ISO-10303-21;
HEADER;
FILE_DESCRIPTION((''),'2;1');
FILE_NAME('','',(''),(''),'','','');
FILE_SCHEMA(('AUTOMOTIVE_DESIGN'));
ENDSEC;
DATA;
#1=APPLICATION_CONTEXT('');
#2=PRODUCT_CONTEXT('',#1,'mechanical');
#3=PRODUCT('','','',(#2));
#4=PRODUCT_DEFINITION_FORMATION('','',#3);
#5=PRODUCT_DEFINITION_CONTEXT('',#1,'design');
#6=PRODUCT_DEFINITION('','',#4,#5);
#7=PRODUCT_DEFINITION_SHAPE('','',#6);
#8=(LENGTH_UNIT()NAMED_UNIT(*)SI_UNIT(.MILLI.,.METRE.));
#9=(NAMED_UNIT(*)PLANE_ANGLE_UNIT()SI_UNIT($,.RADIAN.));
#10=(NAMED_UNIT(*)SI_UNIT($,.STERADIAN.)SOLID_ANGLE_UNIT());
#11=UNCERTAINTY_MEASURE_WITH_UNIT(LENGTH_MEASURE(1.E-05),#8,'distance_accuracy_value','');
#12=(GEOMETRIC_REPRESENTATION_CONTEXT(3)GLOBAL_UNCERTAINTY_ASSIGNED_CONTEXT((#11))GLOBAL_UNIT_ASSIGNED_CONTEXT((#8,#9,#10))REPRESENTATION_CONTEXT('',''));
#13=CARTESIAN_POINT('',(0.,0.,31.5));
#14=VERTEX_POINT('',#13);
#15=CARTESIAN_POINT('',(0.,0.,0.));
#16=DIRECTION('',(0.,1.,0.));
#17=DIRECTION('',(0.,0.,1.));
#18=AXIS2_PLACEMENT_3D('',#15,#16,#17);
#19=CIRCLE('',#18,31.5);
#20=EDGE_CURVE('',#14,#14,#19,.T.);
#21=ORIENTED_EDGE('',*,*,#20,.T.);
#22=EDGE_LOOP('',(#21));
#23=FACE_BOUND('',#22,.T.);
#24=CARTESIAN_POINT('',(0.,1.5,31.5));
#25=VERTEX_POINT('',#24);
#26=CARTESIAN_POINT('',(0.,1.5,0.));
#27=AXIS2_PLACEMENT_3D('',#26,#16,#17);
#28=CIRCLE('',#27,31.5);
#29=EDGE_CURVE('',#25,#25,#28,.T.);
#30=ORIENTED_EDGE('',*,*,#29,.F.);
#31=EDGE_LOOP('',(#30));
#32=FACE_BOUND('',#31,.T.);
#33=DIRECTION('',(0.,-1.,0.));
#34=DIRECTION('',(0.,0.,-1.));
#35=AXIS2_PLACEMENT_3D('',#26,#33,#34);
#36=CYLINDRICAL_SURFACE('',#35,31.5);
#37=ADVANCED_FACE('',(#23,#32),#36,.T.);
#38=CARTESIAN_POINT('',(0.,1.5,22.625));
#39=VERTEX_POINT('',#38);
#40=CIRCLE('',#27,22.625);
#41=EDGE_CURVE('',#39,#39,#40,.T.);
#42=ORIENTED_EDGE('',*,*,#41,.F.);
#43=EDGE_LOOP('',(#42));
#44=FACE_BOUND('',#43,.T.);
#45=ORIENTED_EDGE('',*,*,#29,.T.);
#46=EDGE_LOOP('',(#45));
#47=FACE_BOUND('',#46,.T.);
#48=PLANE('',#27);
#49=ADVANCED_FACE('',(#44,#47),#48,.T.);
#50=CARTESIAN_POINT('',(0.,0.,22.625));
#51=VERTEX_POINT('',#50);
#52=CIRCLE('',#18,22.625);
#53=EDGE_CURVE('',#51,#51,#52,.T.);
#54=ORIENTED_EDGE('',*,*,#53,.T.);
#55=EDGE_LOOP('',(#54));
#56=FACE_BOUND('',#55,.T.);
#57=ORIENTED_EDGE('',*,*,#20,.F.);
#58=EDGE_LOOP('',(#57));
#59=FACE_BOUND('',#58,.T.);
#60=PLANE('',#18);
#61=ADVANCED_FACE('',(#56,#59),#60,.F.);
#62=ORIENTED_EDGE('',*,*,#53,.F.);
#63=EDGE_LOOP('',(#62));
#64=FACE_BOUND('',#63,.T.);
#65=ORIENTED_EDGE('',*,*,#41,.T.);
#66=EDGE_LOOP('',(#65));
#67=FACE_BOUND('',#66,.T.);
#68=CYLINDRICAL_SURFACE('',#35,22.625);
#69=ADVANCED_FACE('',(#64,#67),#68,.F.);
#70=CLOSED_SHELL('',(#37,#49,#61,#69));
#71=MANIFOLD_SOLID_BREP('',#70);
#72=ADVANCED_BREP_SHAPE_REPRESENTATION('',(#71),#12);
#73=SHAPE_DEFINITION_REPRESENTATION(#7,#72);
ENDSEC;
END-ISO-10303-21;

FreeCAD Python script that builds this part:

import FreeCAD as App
import Part
import Sketcher

V = App.Vector

doc = App.newDocument("Part")
body = doc.addObject("PartDesign::Body", "Body")

sketch1 = doc.addObject("Sketcher::SketchObject", "Sketch")
body.addObject(sketch1)
sketch1.AttachmentSupport = (doc.XZ_Plane, [""])
sketch1.MapMode = "FlatFace"
sketch1.addGeometry(Part.Circle(V(0, 0, 0), V(0, 0, 1), 32), False)
sketch1.addGeometry(Part.Circle(V(0, 0, 0), V(0, 0, 1), 23), False)
sketch1.addConstraint(Sketcher.Constraint("Coincident", 0, 3, -1, 1))
sketch1.addConstraint(Sketcher.Constraint("Coincident", 1, 3, -1, 1))
sketch1.addConstraint(Sketcher.Constraint("Diameter", 0, 63.0))
sketch1.addConstraint(Sketcher.Constraint("Diameter", 1, 45.25))
pad1 = doc.addObject("PartDesign::Pad", "Pad")
body.addObject(pad1)
pad1.Profile = sketch1
pad1.Length = 1.5
pad1.Reversed = True

doc.recompute()
